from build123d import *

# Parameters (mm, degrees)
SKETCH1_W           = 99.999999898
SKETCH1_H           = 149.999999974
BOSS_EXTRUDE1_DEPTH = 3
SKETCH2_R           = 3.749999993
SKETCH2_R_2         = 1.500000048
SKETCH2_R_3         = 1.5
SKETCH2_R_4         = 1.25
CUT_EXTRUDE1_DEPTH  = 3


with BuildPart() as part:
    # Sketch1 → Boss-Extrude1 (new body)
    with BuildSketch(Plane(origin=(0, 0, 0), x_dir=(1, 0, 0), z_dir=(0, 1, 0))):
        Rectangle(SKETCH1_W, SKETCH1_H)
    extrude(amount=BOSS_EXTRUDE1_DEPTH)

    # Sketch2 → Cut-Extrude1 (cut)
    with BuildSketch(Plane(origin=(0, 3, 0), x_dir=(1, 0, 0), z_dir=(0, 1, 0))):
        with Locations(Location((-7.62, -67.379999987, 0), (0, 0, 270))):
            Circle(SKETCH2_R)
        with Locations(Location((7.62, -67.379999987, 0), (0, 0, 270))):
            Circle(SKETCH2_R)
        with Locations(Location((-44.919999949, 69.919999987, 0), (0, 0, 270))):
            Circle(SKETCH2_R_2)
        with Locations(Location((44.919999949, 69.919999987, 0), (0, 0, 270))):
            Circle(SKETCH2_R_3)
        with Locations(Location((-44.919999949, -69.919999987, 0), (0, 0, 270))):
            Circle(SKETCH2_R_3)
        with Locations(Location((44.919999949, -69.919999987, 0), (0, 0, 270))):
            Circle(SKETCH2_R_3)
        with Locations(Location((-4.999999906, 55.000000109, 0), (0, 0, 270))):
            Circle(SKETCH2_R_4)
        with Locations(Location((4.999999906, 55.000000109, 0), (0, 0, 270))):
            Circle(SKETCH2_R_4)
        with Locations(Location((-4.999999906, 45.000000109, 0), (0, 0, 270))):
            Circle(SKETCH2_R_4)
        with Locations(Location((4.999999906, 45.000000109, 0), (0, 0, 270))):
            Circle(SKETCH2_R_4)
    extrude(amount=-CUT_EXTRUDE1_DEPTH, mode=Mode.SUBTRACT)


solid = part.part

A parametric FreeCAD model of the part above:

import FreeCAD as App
import Part
import Sketcher
Q = App.Units.Quantity

doc = App.newDocument("Part")
body = doc.addObject("PartDesign::Body", "Body")

# Sketch on XZ plane
sketch1 = body.newObject("Sketcher::SketchObject", "Sketch")
sketch1.AttachmentSupport = (doc.getObject("XZ_Plane"), [""])
sketch1.MapMode = "FlatFace"
sketch1.addGeometry([
    Part.LineSegment(App.Vector(-50, -75, 0), App.Vector(-50, 75, 0)),
    Part.LineSegment(App.Vector(-50, 75, 0), App.Vector(50, 75, 0)),
    Part.LineSegment(App.Vector(50, 75, 0), App.Vector(50, -75, 0)),
    Part.LineSegment(App.Vector(50, -75, 0), App.Vector(-50, -75, 0)),
], False)
sketch1.addConstraint([
    Sketcher.Constraint("Coincident", 0, 2, 1, 1),
    Sketcher.Constraint("Coincident", 1, 2, 2, 1),
    Sketcher.Constraint("Coincident", 2, 2, 3, 1),
    Sketcher.Constraint("Coincident", 3, 2, 0, 1),
    Sketcher.Constraint("Vertical", 0),
    Sketcher.Constraint("Horizontal", 1),
    Sketcher.Constraint("Vertical", 2),
    Sketcher.Constraint("Horizontal", 3),
    Sketcher.Constraint("Symmetric", 0, 2, 2, 2, -1, 1),
    Sketcher.Constraint("DistanceX", 1, 1, 1, 2, Q("100 mm")),
    Sketcher.Constraint("DistanceY", 0, 1, 0, 2, Q("150 mm")),
])
pad1 = body.newObject("PartDesign::Pad", "Pad")
pad1.Profile = sketch1
pad1.Length = 3
pad1.Reversed = True

# Sketch on XZ plane
sketch2 = body.newObject("Sketcher::SketchObject", "Sketch001")
sketch2.AttachmentSupport = (doc.getObject("XZ_Plane"), [""])
sketch2.MapMode = "FlatFace"
sketch2.AttachmentOffset = App.Placement(App.Vector(0, 0, -3), App.Rotation())
sketch2.addGeometry([
    Part.Circle(App.Vector(-7.6, 67.4, 0), App.Vector(0, 0, 1), 3.7),  # 0
    Part.Circle(App.Vector(7.6, 67.4, 0), App.Vector(0, 0, 1), 3.7),  # 1
    Part.Circle(App.Vector(-44.9, -69.9, 0), App.Vector(0, 0, 1), 1.5),  # 2
    Part.Circle(App.Vector(44.9, -69.9, 0), App.Vector(0, 0, 1), 1.5),  # 3
    Part.Circle(App.Vector(-44.9, 69.9, 0), App.Vector(0, 0, 1), 1.5),  # 4
    Part.Circle(App.Vector(44.9, 69.9, 0), App.Vector(0, 0, 1), 1.5),  # 5
    Part.Circle(App.Vector(-5, -55, 0), App.Vector(0, 0, 1), 1.2),  # 6
    Part.Circle(App.Vector(5, -55, 0), App.Vector(0, 0, 1), 1.2),  # 7
    Part.Circle(App.Vector(-5, -45, 0), App.Vector(0, 0, 1), 1.2),  # 8
    Part.Circle(App.Vector(5, -45, 0), App.Vector(0, 0, 1), 1.2),  # 9
], False)
sketch2.addConstraint([
    Sketcher.Constraint("Equal", 0, 1),
    Sketcher.Constraint("Equal", 2, 3),
    Sketcher.Constraint("Equal", 3, 4),
    Sketcher.Constraint("Equal", 4, 5),
    Sketcher.Constraint("Equal", 6, 7),
    Sketcher.Constraint("Equal", 7, 8),
    Sketcher.Constraint("Equal", 8, 9),
    Sketcher.Constraint("Symmetric", 3, 3, 4, 3, -1, 1),
    Sketcher.Constraint("Symmetric", 2, 3, 5, 3, -1, 1),
    Sketcher.Constraint("Symmetric", 0, 3, 1, 3, -2),
    Sketcher.Constraint("Symmetric", 2, 3, 3, 3, -2),
    Sketcher.Constraint("Symmetric", 6, 3, 7, 3, -2),
    Sketcher.Constraint("Symmetric", 8, 3, 9, 3, -2),
    Sketcher.Constraint("Vertical", 6, 3, 8, 3),
    Sketcher.Constraint("Diameter", 2, Q("3 mm")),
    Sketcher.Constraint("Diameter", 0, Q("7.5 mm")),
    Sketcher.Constraint("Diameter", 6, Q("2.5 mm")),
    Sketcher.Constraint("DistanceX", 6, 3, -1, 1, Q("5 mm")),
    Sketcher.Constraint("DistanceY", 6, 3, -1, 1, Q("55 mm")),
    Sketcher.Constraint("DistanceY", 8, 3, -1, 1, Q("45 mm")),
    Sketcher.Constraint("DistanceX", 2, 3, 0, 3, Q("37.3 mm")),
    Sketcher.Constraint("DistanceY", 2, 3, 0, 3, Q("137.3 mm")),
    Sketcher.Constraint("DistanceX", 0, 3, -1, 1, Q("7.62 mm")),
    Sketcher.Constraint("DistanceY", -1, 1, 0, 3, Q("67.38 mm")),
])
pocket1 = body.newObject("PartDesign::Pocket", "Pocket")
pocket1.Profile = sketch2
pocket1.Length = 3
pocket1.Reversed = True

doc.recompute()
